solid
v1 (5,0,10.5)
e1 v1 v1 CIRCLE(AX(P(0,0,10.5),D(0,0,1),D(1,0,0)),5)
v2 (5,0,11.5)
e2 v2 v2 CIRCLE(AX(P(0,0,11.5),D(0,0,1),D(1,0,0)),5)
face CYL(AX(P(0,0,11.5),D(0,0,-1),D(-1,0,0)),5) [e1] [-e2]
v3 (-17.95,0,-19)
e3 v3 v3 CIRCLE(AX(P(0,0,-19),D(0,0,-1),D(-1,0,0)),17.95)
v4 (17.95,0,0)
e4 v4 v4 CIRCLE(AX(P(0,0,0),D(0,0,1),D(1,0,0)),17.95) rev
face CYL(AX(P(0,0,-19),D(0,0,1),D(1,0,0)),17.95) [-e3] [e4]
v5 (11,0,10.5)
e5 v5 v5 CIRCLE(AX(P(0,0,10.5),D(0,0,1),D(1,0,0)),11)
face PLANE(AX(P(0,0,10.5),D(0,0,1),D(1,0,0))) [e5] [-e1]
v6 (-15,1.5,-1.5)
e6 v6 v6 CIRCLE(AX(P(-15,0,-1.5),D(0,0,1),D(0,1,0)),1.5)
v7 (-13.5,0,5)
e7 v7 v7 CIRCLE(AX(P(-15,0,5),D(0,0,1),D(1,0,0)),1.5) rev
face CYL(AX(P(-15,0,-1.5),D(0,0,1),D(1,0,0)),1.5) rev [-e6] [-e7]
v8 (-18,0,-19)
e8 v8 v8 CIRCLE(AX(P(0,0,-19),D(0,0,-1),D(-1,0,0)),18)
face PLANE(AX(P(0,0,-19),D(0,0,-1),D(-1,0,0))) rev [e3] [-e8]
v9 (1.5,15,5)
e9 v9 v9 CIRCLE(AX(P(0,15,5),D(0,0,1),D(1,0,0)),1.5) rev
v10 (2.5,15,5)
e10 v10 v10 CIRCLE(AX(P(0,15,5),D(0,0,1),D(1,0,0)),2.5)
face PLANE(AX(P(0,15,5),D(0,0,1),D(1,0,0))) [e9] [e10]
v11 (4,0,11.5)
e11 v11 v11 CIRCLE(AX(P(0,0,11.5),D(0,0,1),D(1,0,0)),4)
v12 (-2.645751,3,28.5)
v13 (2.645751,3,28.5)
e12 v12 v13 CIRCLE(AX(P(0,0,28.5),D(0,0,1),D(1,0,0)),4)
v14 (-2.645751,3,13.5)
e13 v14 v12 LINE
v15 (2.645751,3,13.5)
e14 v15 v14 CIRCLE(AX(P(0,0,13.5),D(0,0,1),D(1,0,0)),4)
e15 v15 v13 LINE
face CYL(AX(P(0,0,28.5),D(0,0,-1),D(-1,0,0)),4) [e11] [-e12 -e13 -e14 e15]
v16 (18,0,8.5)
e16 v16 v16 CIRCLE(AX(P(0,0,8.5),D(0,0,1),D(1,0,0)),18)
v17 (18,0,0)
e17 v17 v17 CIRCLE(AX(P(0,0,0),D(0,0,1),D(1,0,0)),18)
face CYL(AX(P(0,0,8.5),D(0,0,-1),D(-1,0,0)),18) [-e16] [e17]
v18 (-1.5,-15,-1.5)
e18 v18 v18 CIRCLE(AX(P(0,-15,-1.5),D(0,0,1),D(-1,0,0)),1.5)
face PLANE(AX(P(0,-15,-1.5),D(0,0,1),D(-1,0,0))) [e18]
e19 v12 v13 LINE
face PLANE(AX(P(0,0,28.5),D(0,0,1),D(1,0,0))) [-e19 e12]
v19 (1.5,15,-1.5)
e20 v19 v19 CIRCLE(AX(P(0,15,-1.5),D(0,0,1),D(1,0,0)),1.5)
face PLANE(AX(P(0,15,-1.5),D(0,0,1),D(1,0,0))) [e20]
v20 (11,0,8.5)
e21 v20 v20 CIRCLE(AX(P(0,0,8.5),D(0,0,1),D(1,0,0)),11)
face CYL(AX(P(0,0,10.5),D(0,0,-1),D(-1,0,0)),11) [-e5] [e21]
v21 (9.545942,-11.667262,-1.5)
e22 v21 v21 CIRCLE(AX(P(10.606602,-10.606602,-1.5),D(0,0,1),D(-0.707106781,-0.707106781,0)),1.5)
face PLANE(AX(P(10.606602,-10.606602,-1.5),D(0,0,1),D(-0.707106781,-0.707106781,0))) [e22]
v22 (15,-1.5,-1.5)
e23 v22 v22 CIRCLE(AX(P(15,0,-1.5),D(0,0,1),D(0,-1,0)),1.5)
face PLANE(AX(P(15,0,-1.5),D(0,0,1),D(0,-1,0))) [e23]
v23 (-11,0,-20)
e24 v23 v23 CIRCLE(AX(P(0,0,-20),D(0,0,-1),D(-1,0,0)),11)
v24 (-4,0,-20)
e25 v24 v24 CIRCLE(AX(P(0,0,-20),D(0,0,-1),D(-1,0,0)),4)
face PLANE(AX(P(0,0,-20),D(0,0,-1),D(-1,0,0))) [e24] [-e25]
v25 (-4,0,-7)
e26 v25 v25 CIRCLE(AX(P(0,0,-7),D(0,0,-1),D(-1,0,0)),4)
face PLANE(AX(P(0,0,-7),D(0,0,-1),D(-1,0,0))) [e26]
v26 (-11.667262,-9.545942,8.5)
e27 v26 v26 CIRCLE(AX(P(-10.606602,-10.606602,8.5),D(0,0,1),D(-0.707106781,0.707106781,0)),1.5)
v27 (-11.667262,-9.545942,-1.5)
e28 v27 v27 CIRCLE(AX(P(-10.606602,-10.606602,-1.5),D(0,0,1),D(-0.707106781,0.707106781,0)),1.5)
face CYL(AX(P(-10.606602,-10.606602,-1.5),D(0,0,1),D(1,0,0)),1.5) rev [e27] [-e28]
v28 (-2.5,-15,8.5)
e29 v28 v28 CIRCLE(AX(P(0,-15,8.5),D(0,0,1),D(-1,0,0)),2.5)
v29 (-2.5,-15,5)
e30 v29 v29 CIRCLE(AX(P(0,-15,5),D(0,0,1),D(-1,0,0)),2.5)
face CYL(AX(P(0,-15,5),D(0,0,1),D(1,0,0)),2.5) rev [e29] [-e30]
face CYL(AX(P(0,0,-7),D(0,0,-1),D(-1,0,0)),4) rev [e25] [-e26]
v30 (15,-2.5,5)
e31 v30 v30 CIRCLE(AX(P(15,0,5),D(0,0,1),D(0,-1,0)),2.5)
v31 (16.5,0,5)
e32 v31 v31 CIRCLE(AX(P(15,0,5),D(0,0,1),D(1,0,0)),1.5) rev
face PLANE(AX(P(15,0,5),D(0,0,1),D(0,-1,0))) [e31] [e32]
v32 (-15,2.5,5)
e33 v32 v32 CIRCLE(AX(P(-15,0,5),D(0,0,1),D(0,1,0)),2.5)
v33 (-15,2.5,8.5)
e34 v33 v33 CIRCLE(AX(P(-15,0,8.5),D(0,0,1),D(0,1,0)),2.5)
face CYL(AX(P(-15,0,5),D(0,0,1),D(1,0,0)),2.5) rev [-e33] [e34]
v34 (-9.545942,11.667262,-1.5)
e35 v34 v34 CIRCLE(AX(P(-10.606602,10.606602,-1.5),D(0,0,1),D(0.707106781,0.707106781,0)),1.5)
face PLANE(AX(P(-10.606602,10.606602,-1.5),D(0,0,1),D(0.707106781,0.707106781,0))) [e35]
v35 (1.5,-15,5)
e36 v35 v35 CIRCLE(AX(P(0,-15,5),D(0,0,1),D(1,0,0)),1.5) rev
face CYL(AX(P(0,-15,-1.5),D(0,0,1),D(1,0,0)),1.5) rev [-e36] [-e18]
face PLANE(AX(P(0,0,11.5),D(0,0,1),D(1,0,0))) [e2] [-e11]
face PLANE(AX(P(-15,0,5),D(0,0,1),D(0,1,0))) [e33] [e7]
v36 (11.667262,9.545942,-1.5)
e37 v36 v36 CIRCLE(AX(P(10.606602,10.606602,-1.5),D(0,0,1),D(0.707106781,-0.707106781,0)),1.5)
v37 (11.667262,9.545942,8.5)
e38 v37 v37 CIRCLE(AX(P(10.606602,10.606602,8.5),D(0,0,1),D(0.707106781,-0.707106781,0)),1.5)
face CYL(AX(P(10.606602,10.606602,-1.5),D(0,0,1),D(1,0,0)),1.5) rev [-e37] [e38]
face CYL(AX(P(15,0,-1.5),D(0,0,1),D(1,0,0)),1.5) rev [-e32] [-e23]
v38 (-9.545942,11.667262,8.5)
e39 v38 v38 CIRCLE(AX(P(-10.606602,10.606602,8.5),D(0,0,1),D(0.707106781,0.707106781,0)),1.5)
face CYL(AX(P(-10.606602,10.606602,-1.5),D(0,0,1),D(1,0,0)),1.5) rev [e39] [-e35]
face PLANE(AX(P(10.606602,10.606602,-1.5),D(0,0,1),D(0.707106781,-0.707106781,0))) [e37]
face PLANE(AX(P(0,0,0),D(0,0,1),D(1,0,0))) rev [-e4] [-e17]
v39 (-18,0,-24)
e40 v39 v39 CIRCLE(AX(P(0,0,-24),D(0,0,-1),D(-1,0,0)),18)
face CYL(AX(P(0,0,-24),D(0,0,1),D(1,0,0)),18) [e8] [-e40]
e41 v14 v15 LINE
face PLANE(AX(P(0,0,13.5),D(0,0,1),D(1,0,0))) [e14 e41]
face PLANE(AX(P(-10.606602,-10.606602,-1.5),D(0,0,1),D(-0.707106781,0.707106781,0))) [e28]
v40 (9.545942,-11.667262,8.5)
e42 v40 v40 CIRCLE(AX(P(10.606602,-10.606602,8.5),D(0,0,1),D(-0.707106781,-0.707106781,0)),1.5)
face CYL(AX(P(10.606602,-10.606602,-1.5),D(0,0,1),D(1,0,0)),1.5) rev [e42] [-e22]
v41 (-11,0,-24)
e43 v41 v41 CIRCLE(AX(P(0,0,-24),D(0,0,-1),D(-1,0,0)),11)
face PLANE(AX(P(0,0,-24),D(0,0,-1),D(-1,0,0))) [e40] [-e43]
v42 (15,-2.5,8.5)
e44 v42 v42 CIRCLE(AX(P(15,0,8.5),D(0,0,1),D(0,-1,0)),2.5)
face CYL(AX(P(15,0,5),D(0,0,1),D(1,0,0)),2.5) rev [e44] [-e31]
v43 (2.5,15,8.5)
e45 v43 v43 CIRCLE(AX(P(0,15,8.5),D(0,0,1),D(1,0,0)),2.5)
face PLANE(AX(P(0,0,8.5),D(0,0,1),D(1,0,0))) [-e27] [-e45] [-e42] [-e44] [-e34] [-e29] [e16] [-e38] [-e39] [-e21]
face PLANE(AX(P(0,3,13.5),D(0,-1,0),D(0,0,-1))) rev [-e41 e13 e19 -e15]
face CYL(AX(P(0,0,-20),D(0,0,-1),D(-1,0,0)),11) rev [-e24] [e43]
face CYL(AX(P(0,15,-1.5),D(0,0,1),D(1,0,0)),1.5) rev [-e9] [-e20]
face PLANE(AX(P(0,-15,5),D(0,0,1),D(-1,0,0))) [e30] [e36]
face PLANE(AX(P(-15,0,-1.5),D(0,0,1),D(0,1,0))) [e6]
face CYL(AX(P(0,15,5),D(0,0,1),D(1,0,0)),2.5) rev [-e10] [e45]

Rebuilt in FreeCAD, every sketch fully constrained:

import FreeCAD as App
import Part
import Sketcher
from FreeCAD import Vector


def add_polygon(sketch, points):
    """Adds a closed chain of lines whose ends are joined by coincident constraints."""
    first, n = sketch.GeometryCount, len(points)
    for a, b in zip(points, points[1:] + points[:1]):
        sketch.addGeometry(Part.LineSegment(App.Vector(*a, 0), App.Vector(*b, 0)), False)
    for i in range(n):
        sketch.addConstraint(Sketcher.Constraint("Coincident", first + i, 2, first + (i + 1) % n, 1))

doc = App.newDocument("Part")
body = doc.addObject("PartDesign::Body", "Body")

# Sketch on XY plane
sketch1 = body.newObject("Sketcher::SketchObject", "Sketch")
sketch1.AttachmentSupport = (doc.getObject("XY_Plane"), [""])
sketch1.MapMode = "FlatFace"
sketch1.addGeometry(Part.Circle(Vector(0, 0, 0), Vector(0, 0, 1), 18), False)
sketch1.addConstraint(Sketcher.Constraint("Coincident", 0, 3, -1, 1))
sketch1.addConstraint(Sketcher.Constraint("Diameter", 0, 36.0))
pad1 = body.newObject("PartDesign::Pad", "Pad")
pad1.Profile = sketch1
pad1.Length = 8.5

# Sketch on XY plane
sketch2 = body.newObject("Sketcher::SketchObject", "Sketch001")
sketch2.AttachmentSupport = (doc.getObject("XY_Plane"), [""])
sketch2.MapMode = "FlatFace"
sketch2.addGeometry(Part.Circle(Vector(0, 0, 0), Vector(0, 0, 1), 18), False)
sketch2.addConstraint(Sketcher.Constraint("Coincident", 0, 3, -1, 1))
sketch2.addConstraint(Sketcher.Constraint("Diameter", 0, 35.9))
pad2 = body.newObject("PartDesign::Pad", "Pad001")
pad2.Profile = sketch2
pad2.Length = 19
pad2.Reversed = True

# Sketch on XY plane
sketch3 = body.newObject("Sketcher::SketchObject", "Sketch002")
sketch3.AttachmentSupport = (doc.getObject("XY_Plane"), [""])
sketch3.MapMode = "FlatFace"
sketch3.AttachmentOffset = App.Placement(Vector(0, 0, -19), App.Rotation())
sketch3.addGeometry(Part.Circle(Vector(0, 0, 0), Vector(0, 0, 1), 18), False)
sketch3.addConstraint(Sketcher.Constraint("Coincident", 0, 3, -1, 1))
sketch3.addConstraint(Sketcher.Constraint("Diameter", 0, 36.0))
pad3 = body.newObject("PartDesign::Pad", "Pad002")
pad3.Profile = sketch3
pad3.Length = 5
pad3.Reversed = True

# Sketch on XY plane
sketch4 = body.newObject("Sketcher::SketchObject", "Sketch003")
sketch4.AttachmentSupport = (doc.getObject("XY_Plane"), [""])
sketch4.MapMode = "FlatFace"
sketch4.AttachmentOffset = App.Placement(Vector(0, 0, 8.5), App.Rotation())
sketch4.addGeometry(Part.Circle(Vector(0, 0, 0), Vector(0, 0, 1), 11), False)
sketch4.addConstraint(Sketcher.Constraint("Coincident", 0, 3, -1, 1))
sketch4.addConstraint(Sketcher.Constraint("Diameter", 0, 22.0))
pad4 = body.newObject("PartDesign::Pad", "Pad003")
pad4.Profile = sketch4
pad4.Length = 2

# Sketch on XY plane
sketch5 = body.newObject("Sketcher::SketchObject", "Sketch004")
sketch5.AttachmentSupport = (doc.getObject("XY_Plane"), [""])
sketch5.MapMode = "FlatFace"
sketch5.AttachmentOffset = App.Placement(Vector(0, 0, 10.5), App.Rotation())
sketch5.addGeometry(Part.Circle(Vector(0, 0, 0), Vector(0, 0, 1), 5), False)
sketch5.addConstraint(Sketcher.Constraint("Coincident", 0, 3, -1, 1))
sketch5.addConstraint(Sketcher.Constraint("Diameter", 0, 10.0))
pad5 = body.newObject("PartDesign::Pad", "Pad004")
pad5.Profile = sketch5
pad5.Length = 1

# Sketch on XY plane
sketch6 = body.newObject("Sketcher::SketchObject", "Sketch005")
sketch6.AttachmentSupport = (doc.getObject("XY_Plane"), [""])
sketch6.MapMode = "FlatFace"
sketch6.AttachmentOffset = App.Placement(Vector(0, 0, 11.5), App.Rotation())
sketch6.addGeometry(Part.Circle(Vector(0, 0, 0), Vector(0, 0, 1), 4), False)
sketch6.addConstraint(Sketcher.Constraint("Coincident", 0, 3, -1, 1))
sketch6.addConstraint(Sketcher.Constraint("Diameter", 0, 8.0))
pad6 = body.newObject("PartDesign::Pad", "Pad005")
pad6.Profile = sketch6
pad6.Length = 17

# Sketch on XY plane
sketch7 = body.newObject("Sketcher::SketchObject", "Sketch006")
sketch7.AttachmentSupport = (doc.getObject("XY_Plane"), [""])
sketch7.MapMode = "FlatFace"
sketch7.AttachmentOffset = App.Placement(Vector(0, 0, 28.5), App.Rotation())
add_polygon(sketch7, [(-72, 3), (72, 3), (72, 141), (-72, 141)])  # lines 0-3
sketch7.addConstraint(Sketcher.Constraint("Horizontal", 0))
sketch7.addConstraint(Sketcher.Constraint("Vertical", 1))
sketch7.addConstraint(Sketcher.Constraint("Horizontal", 2))
sketch7.addConstraint(Sketcher.Constraint("Vertical", 3))
sketch7.addConstraint(Sketcher.Constraint("DistanceY", -1, 1, 0, 2, 3.0))
sketch7.addConstraint(Sketcher.Constraint("DistanceX", 0, 1, 0, 2, 143.087737))
sketch7.addConstraint(Sketcher.Constraint("DistanceY", 1, 1, 1, 2, 137.796234))
sketch7.addConstraint(Sketcher.Constraint("DistanceX", -1, 1, 0, 2, 71.543868))
pocket1 = body.newObject("PartDesign::Pocket", "Pocket")
pocket1.Profile = sketch7
pocket1.Type = "TwoLengths"
pocket1.Length = 1
pocket1.Length2 = 15
pocket1.Reversed = True

# Sketch on XY plane
sketch8 = body.newObject("Sketcher::SketchObject", "Sketch007")
sketch8.AttachmentSupport = (doc.getObject("XY_Plane"), [""])
sketch8.MapMode = "FlatFace"
sketch8.AttachmentOffset = App.Placement(Vector(0, 0, -24), App.Rotation())
sketch8.addGeometry(Part.Circle(Vector(0, 0, 0), Vector(0, 0, 1), 11), False)
sketch8.addConstraint(Sketcher.Constraint("Coincident", 0, 3, -1, 1))
sketch8.addConstraint(Sketcher.Constraint("Diameter", 0, 22.0))
pocket2 = body.newObject("PartDesign::Pocket", "Pocket001")
pocket2.Profile = sketch8
pocket2.Length = 4
pocket2.Reversed = True

# Sketch on XY plane
sketch9 = body.newObject("Sketcher::SketchObject", "Sketch008")
sketch9.AttachmentSupport = (doc.getObject("XY_Plane"), [""])
sketch9.MapMode = "FlatFace"
sketch9.AttachmentOffset = App.Placement(Vector(0, 0, -24), App.Rotation())
sketch9.addGeometry(Part.Circle(Vector(0, 0, 0), Vector(0, 0, 1), 4), False)
sketch9.addConstraint(Sketcher.Constraint("Coincident", 0, 3, -1, 1))
sketch9.addConstraint(Sketcher.Constraint("Diameter", 0, 8.0))
pocket3 = body.newObject("PartDesign::Pocket", "Pocket002")
pocket3.Profile = sketch9
pocket3.Length = 17
pocket3.Reversed = True

# Sketch on XY plane
sketch10 = body.newObject("Sketcher::SketchObject", "Sketch009")
sketch10.AttachmentSupport = (doc.getObject("XY_Plane"), [""])
sketch10.MapMode = "FlatFace"
sketch10.AttachmentOffset = App.Placement(Vector(0, 0, 8.5), App.Rotation())
sketch10.addGeometry(Part.Circle(Vector(0, 15, 0), Vector(0, 0, 1), 1.5), False)
sketch10.addConstraint(Sketcher.Constraint("PointOnObject", 0, 3, -2))
sketch10.addConstraint(Sketcher.Constraint("Diameter", 0, 3.0))
sketch10.addConstraint(Sketcher.Constraint("DistanceY", -1, 1, 0, 3, 15.0))
pocket4 = body.newObject("PartDesign::Pocket", "Pocket003")
pocket4.Profile = sketch10
pocket4.Length = 10
doc.recompute()

polarpattern = body.newObject("PartDesign::PolarPattern", "PolarPattern")
polarpattern.Originals = [pocket4]
polarpattern.Axis = (doc.getObject("Z_Axis"), [""])
polarpattern.Angle = 360
polarpattern.Occurrences = 8
body.Tip = polarpattern

# Sketch on XY plane
sketch11 = body.newObject("Sketcher::SketchObject", "Sketch010")
sketch11.AttachmentSupport = (doc.getObject("XY_Plane"), [""])
sketch11.MapMode = "FlatFace"
sketch11.AttachmentOffset = App.Placement(Vector(0, 0, 8.5), App.Rotation())
sketch11.addGeometry(Part.Circle(Vector(0, 15, 0), Vector(0, 0, 1), 2.5), False)
sketch11.addConstraint(Sketcher.Constraint("PointOnObject", 0, 3, -2))
sketch11.addConstraint(Sketcher.Constraint("Diameter", 0, 5.0))
sketch11.addConstraint(Sketcher.Constraint("DistanceY", -1, 1, 0, 3, 15.0))
pocket5 = body.newObject("PartDesign::Pocket", "Pocket004")
pocket5.Profile = sketch11
pocket5.Length = 3.5
doc.recompute()

polarpattern2 = body.newObject("PartDesign::PolarPattern", "PolarPattern001")
polarpattern2.Originals = [pocket5]
polarpattern2.Axis = (doc.getObject("Z_Axis"), [""])
polarpattern2.Angle = 360
polarpattern2.Occurrences = 4
body.Tip = polarpattern2

doc.recompute()
